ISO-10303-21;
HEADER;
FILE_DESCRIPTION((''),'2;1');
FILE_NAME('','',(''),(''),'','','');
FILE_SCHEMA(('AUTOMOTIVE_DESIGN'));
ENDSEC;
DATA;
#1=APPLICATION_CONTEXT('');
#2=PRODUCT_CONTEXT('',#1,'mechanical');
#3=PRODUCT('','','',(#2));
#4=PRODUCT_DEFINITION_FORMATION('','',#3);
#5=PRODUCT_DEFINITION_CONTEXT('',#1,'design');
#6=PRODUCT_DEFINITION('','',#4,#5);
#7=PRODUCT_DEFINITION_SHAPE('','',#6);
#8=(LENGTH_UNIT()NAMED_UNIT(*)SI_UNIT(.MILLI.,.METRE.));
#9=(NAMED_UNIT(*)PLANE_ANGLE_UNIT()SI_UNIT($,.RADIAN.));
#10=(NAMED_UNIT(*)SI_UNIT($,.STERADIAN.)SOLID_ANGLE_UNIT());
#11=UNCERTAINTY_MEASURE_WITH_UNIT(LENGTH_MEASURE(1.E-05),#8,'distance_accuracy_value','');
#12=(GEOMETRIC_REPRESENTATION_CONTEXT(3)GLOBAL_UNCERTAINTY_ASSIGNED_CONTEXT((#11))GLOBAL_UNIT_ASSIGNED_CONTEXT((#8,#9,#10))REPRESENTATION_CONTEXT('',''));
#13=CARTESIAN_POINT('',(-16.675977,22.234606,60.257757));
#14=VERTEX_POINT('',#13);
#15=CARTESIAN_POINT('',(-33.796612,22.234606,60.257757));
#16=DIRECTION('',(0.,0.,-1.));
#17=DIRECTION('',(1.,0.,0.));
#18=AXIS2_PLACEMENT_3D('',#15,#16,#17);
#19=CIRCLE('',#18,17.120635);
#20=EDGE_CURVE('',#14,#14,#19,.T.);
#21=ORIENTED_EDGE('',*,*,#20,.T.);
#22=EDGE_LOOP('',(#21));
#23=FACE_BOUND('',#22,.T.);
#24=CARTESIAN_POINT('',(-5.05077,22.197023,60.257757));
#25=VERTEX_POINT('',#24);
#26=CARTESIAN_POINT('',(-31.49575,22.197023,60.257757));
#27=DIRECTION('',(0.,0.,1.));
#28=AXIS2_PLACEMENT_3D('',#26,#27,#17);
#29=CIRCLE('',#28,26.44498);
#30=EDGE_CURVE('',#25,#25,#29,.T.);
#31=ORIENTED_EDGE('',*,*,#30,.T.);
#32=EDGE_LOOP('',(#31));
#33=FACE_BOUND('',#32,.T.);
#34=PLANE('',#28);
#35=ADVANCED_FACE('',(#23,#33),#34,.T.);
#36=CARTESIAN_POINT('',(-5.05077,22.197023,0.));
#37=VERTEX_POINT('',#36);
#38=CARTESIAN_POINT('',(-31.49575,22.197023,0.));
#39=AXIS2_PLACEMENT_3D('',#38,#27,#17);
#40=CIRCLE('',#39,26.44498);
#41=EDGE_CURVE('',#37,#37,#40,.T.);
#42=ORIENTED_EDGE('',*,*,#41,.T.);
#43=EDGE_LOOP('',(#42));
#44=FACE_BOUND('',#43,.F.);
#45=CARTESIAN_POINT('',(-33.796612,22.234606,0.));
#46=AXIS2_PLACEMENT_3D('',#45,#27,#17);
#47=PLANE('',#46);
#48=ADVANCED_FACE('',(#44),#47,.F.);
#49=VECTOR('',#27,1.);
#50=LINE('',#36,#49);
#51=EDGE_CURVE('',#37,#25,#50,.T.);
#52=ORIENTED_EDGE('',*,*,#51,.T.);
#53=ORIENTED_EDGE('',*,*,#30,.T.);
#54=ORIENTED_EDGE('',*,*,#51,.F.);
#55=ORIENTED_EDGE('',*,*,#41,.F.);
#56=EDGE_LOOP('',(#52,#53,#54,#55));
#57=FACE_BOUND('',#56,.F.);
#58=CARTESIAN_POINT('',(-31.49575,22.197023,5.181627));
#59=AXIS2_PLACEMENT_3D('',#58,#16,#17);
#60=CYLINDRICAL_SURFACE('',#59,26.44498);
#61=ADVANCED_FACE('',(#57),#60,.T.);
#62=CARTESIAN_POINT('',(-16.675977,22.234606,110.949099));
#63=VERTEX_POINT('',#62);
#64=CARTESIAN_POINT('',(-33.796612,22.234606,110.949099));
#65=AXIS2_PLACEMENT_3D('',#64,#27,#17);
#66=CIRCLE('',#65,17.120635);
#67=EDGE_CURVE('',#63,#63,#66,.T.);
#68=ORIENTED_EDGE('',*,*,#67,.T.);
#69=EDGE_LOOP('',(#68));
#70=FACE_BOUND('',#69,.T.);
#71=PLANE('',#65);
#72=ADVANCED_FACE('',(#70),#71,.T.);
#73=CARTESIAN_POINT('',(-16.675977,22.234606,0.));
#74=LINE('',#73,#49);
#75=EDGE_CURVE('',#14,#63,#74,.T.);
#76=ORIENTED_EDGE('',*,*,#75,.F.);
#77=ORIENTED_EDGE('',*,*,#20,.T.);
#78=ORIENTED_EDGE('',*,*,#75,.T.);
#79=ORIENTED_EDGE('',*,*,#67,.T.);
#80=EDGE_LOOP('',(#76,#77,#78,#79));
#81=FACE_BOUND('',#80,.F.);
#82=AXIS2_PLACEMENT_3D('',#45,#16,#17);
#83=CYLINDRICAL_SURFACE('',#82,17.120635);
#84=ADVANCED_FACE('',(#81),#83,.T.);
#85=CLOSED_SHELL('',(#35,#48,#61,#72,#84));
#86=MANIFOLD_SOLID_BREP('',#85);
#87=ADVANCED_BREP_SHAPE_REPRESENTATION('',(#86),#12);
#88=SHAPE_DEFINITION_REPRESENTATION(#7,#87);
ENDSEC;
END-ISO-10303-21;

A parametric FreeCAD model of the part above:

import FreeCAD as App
import Part
import Sketcher

V = App.Vector
Q = App.Units.Quantity

doc = App.newDocument("Part")
body = doc.addObject("PartDesign::Body", "Body")

# Sketch on XY plane
sketch1 = body.newObject("Sketcher::SketchObject", "Sketch")
sketch1.AttachmentSupport = (doc.getObject("XY_Plane"), [""])
sketch1.MapMode = "FlatFace"
sketch1.addGeometry(Part.Circle(V(-31.49575, 22.197023, 0), V(0, 0, 1), 26.44498), False)
sketch1.addConstraint([
    Sketcher.Constraint("Diameter", 0, Q("52.88996 mm")),
    Sketcher.Constraint("DistanceX", 0, 3, -1, 1, Q("31.49575 mm")),
    Sketcher.Constraint("DistanceY", -1, 1, 0, 3, Q("22.197023 mm")),
])
pad1 = body.newObject("PartDesign::Pad", "Pad")
pad1.Profile = sketch1
pad1.Length = 5.181627

# Sketch on XY plane
sketch2 = body.newObject("Sketcher::SketchObject", "Sketch001")
sketch2.AttachmentSupport = (doc.getObject("XY_Plane"), [""])
sketch2.MapMode = "FlatFace"
sketch2.AttachmentOffset = App.Placement(V(0, 0, 5.181627), App.Rotation())
sketch2.addGeometry(Part.Circle(V(-31.49575, 22.197023, 0), V(0, 0, 1), 26.44498), False)
sketch2.addConstraint([
    Sketcher.Constraint("Diameter", 0, Q("52.88996 mm")),
    Sketcher.Constraint("DistanceX", 0, 3, -1, 1, Q("31.49575 mm")),
    Sketcher.Constraint("DistanceY", -1, 1, 0, 3, Q("22.197023 mm")),
])
pad2 = body.newObject("PartDesign::Pad", "Pad001")
pad2.Profile = sketch2
pad2.Length = 55.07613

# Sketch on XY plane
sketch3 = body.newObject("Sketcher::SketchObject", "Sketch002")
sketch3.AttachmentSupport = (doc.getObject("XY_Plane"), [""])
sketch3.MapMode = "FlatFace"
sketch3.addGeometry(Part.Circle(V(-33.796612, 22.234606, 0), V(0, 0, 1), 17.120635), False)
sketch3.addConstraint([
    Sketcher.Constraint("Diameter", 0, Q("34.24127 mm")),
    Sketcher.Constraint("DistanceX", 0, 3, -1, 1, Q("33.796612 mm")),
    Sketcher.Constraint("DistanceY", -1, 1, 0, 3, Q("22.234606 mm")),
])
pad3 = body.newObject("PartDesign::Pad", "Pad002")
pad3.Profile = sketch3
pad3.Length = 110.949099

doc.recompute()
